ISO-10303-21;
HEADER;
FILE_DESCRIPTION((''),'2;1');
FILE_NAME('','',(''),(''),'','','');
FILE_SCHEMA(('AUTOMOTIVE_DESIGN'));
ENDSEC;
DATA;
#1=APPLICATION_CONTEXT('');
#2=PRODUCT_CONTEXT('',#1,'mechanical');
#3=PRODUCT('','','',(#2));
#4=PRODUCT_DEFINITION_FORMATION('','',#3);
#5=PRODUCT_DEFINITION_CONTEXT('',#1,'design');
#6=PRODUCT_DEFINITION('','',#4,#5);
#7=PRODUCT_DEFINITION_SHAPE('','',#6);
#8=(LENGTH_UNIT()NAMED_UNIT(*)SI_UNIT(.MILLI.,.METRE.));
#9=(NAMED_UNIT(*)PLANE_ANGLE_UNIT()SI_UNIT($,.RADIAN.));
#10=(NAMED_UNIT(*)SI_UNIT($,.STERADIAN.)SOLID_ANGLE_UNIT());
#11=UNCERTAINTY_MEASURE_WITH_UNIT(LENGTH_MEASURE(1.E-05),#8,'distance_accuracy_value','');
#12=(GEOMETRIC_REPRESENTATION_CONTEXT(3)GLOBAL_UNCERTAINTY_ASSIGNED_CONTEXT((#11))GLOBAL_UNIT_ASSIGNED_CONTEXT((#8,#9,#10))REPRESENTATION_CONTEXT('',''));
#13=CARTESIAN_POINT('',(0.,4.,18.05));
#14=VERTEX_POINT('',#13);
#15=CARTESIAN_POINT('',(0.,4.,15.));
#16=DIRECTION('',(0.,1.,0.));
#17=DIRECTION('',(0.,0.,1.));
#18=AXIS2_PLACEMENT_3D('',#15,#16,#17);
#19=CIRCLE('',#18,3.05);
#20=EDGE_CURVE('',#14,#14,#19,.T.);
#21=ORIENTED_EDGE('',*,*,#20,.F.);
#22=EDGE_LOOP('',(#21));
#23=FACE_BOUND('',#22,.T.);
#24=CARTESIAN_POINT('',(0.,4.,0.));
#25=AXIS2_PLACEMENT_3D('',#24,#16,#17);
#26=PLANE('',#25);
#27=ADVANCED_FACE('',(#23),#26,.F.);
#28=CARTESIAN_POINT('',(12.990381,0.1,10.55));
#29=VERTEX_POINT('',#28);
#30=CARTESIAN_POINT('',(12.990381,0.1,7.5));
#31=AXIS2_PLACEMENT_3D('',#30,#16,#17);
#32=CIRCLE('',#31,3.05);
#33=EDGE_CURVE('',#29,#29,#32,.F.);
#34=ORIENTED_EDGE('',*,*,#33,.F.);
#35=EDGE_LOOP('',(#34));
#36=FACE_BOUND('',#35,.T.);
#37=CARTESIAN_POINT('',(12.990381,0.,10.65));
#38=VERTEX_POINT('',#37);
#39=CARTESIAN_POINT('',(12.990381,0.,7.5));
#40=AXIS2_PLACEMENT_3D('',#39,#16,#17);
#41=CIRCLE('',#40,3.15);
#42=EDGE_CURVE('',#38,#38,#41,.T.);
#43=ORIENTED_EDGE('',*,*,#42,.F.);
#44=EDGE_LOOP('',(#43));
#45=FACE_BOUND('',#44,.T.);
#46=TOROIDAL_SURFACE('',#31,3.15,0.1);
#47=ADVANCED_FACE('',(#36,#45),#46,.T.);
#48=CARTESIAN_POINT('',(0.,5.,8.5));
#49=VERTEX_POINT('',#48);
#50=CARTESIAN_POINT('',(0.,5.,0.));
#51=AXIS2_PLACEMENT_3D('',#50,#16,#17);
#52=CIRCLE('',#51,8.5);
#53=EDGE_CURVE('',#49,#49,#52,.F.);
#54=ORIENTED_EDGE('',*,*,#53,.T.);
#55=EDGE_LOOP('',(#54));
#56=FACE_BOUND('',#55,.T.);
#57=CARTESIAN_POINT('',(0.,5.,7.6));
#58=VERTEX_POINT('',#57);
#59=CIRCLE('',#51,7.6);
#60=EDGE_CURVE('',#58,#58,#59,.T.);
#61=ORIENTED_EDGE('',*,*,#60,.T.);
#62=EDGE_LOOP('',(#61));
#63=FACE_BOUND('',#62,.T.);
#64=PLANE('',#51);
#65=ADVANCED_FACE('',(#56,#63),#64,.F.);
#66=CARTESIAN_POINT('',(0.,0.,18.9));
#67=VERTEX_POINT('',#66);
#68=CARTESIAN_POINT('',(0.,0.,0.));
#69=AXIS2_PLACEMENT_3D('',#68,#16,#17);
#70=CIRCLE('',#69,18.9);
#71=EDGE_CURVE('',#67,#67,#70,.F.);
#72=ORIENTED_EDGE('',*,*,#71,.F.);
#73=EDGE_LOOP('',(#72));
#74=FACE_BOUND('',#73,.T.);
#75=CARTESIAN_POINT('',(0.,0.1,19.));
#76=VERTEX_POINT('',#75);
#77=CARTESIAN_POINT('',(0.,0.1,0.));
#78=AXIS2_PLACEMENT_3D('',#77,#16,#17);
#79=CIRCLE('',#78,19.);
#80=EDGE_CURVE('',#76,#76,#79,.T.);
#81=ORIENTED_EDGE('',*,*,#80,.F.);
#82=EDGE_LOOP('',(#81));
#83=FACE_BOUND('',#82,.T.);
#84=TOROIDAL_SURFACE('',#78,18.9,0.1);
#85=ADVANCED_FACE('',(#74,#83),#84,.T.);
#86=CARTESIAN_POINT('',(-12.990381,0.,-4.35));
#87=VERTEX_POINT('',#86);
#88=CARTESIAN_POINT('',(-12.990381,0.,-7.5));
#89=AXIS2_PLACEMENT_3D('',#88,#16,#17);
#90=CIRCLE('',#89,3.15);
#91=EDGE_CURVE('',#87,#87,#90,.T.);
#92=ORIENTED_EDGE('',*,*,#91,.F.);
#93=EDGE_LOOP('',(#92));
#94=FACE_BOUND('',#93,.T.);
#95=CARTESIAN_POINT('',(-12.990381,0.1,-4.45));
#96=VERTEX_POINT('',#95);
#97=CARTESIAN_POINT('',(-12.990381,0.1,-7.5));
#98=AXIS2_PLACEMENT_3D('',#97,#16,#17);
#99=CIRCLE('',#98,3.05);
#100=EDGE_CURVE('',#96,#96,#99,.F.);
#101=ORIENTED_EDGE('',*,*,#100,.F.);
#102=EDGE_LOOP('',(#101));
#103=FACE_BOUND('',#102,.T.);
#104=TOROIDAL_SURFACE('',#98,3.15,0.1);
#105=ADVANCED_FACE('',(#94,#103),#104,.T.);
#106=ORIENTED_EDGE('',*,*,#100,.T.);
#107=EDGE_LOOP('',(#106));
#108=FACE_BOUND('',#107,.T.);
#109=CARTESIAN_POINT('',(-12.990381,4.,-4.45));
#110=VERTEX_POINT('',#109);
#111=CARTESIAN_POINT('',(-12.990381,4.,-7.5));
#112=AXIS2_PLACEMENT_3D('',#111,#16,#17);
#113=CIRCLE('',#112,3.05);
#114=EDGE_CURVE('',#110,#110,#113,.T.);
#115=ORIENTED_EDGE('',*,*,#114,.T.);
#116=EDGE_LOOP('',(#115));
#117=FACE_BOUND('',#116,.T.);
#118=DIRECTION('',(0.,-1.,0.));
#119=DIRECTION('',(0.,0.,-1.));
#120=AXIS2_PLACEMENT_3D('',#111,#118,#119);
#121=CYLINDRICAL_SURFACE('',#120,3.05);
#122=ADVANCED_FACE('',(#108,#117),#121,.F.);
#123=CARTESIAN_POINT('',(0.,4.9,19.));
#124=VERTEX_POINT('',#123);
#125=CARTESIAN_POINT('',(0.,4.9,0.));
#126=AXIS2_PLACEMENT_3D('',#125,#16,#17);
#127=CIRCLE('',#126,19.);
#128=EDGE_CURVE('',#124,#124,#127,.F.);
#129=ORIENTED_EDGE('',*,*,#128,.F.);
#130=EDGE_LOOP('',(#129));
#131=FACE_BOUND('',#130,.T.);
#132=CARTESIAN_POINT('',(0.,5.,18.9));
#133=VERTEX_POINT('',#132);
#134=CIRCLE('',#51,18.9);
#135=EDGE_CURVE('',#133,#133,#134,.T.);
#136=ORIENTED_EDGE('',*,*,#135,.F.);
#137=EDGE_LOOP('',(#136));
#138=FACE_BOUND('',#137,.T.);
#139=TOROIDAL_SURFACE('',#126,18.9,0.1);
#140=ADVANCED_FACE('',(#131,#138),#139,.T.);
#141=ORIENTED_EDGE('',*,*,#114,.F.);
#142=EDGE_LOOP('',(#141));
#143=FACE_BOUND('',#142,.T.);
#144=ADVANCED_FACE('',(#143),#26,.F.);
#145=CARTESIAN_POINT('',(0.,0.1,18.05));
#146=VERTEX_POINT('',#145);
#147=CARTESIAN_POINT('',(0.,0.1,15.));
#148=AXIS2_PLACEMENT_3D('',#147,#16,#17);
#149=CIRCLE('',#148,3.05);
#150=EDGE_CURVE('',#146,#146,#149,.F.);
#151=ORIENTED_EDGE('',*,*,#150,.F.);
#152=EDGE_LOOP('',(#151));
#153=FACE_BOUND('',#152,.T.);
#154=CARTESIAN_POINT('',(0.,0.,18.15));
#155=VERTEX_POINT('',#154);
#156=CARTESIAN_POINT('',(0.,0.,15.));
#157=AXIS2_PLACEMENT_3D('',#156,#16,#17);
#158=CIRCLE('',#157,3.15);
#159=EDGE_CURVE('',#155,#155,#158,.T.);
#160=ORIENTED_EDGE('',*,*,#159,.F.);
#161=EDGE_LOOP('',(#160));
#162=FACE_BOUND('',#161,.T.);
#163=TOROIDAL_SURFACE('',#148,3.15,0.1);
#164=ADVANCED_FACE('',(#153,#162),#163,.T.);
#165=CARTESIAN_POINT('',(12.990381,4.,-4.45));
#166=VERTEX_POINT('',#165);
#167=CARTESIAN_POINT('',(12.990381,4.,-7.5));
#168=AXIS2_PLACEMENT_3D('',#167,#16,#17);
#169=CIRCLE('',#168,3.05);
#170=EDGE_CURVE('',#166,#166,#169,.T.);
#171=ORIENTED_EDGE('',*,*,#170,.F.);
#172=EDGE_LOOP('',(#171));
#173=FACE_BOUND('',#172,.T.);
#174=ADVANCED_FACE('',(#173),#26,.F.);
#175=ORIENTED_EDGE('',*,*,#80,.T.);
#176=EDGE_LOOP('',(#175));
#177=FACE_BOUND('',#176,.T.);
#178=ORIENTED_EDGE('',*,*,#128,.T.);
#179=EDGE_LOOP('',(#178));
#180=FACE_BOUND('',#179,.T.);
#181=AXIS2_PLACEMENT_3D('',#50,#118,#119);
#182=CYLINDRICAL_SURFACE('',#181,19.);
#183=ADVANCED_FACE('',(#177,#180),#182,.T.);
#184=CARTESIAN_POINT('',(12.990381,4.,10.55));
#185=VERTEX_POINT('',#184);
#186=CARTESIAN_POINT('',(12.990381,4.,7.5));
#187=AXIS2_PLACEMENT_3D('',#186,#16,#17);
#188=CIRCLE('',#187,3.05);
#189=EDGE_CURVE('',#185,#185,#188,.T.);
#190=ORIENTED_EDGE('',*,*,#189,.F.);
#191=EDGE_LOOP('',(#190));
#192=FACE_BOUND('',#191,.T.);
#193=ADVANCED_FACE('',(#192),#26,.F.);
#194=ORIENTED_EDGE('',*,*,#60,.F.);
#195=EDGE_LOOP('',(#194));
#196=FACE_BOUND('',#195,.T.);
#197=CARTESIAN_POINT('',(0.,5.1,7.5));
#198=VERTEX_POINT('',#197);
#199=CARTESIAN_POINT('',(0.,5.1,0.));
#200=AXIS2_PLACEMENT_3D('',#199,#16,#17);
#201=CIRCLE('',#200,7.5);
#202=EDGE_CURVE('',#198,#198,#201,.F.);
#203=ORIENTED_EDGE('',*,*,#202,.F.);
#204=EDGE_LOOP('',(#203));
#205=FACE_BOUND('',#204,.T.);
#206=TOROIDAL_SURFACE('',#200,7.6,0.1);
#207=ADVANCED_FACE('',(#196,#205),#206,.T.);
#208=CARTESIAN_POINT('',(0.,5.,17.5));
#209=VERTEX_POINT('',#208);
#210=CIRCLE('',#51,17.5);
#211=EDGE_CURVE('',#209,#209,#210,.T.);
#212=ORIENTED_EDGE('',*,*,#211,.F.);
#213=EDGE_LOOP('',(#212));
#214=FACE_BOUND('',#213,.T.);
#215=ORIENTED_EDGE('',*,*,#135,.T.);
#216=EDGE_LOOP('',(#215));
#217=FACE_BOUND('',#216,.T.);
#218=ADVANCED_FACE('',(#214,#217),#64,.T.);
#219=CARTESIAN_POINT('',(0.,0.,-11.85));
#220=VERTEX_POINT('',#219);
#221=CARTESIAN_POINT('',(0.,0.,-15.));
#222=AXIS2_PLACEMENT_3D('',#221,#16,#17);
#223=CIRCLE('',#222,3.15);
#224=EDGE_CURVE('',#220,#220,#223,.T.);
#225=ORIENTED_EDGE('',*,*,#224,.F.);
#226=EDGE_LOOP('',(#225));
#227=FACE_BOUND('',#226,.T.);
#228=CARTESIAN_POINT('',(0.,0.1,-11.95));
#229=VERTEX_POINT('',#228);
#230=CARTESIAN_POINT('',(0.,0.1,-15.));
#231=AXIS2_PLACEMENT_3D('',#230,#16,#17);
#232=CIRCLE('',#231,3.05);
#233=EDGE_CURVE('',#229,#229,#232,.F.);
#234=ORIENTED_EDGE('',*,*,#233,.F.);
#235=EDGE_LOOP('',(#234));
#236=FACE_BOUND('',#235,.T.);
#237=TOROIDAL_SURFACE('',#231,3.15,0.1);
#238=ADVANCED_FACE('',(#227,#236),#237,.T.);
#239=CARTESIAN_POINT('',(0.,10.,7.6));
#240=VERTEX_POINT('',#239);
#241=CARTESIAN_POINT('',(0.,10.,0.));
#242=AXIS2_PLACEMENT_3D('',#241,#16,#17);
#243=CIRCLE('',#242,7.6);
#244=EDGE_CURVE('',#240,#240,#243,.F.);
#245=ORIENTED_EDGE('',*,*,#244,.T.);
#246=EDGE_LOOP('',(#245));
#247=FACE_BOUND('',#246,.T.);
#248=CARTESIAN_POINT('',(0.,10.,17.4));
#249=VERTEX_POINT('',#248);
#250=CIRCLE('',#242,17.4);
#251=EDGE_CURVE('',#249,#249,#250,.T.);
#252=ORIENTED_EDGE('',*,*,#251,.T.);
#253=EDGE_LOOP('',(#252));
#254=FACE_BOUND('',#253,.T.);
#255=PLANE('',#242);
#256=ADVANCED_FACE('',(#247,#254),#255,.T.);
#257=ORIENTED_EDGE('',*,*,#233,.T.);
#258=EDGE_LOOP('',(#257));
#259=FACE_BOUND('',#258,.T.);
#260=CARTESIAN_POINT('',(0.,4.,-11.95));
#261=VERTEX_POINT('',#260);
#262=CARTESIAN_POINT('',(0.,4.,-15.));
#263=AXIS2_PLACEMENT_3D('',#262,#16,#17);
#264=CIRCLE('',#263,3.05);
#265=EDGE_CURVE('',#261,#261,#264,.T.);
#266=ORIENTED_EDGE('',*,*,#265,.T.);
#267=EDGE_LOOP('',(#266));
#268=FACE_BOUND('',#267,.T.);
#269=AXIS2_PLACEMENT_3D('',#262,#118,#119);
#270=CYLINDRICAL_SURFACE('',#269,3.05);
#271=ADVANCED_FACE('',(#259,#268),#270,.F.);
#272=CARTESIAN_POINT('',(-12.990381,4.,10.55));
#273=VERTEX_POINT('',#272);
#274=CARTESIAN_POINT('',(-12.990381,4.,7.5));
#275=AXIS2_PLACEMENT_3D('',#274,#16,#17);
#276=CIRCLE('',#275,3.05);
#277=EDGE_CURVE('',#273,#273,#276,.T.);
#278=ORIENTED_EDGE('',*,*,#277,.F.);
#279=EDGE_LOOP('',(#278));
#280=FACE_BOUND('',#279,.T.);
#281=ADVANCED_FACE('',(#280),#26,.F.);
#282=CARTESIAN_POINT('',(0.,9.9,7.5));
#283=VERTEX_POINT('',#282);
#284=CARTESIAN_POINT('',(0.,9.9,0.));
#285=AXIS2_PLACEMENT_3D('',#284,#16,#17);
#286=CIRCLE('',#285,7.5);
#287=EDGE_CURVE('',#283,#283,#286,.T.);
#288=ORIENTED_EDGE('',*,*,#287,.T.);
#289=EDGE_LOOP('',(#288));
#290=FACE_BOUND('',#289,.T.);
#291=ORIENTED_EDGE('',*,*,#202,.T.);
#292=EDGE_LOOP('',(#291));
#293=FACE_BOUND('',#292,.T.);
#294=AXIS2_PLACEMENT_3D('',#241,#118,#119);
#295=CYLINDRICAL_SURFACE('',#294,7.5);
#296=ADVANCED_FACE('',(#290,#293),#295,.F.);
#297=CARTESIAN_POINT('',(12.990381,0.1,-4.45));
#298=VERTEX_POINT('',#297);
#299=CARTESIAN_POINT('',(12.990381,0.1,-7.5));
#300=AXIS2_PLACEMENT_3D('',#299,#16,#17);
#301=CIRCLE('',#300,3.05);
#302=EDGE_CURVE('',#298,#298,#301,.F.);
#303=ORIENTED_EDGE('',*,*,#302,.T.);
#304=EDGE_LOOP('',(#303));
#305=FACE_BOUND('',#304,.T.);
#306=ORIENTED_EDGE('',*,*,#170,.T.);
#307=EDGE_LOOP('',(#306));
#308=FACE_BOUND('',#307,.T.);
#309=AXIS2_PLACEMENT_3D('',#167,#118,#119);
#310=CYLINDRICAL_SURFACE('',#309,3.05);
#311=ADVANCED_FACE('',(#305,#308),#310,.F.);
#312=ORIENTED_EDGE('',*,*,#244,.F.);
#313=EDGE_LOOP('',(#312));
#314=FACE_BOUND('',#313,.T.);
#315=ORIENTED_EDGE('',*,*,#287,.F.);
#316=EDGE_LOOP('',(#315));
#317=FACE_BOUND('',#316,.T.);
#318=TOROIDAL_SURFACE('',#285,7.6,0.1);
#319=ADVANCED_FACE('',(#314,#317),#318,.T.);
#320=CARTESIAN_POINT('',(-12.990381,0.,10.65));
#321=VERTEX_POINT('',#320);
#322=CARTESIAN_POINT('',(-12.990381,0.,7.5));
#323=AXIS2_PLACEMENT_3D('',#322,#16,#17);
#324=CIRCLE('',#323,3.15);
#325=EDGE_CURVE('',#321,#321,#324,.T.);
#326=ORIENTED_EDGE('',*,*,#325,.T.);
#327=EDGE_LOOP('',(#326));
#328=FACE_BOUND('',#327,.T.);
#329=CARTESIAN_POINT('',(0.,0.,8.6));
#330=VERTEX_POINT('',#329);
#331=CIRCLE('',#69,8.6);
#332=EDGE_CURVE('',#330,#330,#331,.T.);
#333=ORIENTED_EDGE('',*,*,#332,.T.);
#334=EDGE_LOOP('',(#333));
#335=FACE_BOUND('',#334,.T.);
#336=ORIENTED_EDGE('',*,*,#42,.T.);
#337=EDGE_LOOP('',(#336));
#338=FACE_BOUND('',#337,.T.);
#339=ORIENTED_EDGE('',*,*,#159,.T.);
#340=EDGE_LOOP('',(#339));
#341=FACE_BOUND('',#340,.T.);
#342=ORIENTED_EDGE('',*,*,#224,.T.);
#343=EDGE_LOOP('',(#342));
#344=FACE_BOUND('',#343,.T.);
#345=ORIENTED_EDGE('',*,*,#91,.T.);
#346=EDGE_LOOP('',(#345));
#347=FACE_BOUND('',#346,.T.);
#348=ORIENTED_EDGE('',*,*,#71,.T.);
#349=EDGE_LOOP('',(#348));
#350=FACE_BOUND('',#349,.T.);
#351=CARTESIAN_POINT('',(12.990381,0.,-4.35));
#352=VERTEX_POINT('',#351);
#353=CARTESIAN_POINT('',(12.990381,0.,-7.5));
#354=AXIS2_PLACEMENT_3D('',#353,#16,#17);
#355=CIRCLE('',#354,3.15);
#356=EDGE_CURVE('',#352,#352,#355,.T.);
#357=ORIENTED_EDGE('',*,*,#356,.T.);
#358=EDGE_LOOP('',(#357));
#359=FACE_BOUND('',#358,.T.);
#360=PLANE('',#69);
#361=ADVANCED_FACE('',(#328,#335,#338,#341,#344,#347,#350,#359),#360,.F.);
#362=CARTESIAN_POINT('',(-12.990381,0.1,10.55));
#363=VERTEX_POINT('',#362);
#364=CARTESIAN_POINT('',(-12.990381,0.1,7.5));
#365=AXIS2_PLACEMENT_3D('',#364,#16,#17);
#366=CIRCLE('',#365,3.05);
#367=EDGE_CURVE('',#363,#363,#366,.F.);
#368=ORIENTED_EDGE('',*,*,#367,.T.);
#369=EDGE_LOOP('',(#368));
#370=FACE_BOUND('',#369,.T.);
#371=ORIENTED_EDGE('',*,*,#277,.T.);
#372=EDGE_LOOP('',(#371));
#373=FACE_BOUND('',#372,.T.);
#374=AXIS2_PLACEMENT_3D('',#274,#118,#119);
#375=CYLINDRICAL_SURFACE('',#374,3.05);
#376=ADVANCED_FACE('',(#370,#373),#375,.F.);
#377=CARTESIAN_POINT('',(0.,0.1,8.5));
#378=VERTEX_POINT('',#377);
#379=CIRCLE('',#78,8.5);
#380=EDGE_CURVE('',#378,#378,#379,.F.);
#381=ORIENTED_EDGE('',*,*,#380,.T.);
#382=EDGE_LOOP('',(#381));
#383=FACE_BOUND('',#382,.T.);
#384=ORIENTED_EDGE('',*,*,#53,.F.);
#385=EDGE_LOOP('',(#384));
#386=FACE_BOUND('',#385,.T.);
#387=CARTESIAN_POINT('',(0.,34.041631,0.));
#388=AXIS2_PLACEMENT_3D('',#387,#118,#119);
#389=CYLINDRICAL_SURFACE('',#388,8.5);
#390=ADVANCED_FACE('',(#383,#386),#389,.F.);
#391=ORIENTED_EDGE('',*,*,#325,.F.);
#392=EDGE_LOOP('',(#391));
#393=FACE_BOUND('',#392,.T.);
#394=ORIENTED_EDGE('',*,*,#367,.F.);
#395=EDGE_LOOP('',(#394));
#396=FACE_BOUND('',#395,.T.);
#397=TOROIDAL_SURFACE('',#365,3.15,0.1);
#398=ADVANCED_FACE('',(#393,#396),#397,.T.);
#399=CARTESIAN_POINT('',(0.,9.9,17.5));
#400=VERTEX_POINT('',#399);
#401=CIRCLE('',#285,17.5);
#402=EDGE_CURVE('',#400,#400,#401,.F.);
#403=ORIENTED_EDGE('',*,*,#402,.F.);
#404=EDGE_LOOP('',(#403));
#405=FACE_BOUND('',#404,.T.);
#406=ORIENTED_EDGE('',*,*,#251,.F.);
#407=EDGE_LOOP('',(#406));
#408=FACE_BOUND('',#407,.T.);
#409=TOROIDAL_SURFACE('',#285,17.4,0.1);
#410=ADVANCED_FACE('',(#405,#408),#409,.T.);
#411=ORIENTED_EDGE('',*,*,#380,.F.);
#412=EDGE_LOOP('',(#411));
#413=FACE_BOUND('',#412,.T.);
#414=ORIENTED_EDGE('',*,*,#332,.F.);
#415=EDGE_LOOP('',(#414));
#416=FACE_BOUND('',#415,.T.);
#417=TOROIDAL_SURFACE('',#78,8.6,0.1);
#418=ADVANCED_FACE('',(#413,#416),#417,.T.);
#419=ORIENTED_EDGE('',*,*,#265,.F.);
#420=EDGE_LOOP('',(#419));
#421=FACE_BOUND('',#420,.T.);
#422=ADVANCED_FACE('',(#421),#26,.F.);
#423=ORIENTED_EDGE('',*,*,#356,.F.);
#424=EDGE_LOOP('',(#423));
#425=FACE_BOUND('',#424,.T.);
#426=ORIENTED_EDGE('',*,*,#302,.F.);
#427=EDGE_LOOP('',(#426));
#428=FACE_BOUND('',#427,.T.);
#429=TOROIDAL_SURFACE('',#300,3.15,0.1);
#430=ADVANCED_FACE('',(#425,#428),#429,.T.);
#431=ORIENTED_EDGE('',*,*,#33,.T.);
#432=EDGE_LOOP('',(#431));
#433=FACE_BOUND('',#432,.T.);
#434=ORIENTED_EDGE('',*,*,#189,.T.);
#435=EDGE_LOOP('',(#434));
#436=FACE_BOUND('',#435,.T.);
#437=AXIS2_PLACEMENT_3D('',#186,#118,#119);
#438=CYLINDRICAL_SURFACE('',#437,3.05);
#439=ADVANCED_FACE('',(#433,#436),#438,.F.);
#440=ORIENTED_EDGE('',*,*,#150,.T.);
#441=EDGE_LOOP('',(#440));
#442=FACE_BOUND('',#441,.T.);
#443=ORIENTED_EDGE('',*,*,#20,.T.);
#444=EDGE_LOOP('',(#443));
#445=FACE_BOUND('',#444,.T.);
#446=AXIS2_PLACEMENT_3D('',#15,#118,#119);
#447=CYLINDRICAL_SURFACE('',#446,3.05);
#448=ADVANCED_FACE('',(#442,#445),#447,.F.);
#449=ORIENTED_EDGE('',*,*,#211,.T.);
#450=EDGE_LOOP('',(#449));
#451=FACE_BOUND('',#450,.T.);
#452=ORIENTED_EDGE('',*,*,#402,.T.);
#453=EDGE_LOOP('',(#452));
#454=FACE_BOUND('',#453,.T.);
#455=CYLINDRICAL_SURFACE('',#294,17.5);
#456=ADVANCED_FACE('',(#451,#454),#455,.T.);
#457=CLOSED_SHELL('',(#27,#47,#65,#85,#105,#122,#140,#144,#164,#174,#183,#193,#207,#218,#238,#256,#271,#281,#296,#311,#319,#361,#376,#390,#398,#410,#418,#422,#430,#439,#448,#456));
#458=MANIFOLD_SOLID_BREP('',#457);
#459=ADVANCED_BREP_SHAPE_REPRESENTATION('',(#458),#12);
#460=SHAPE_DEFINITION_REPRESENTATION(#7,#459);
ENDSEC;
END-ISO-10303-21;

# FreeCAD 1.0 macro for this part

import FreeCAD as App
import Part
import Sketcher


def edges_at(feature, points):
    """Names of the edges that pass closest to the given points."""
    edges = feature.Shape.Edges
    near = lambda p: min(range(len(edges)), key=lambda i: edges[i].distToShape(Part.Vertex(*p))[0])
    return sorted({f"Edge{near(p) + 1}" for p in points})

doc = App.newDocument("Part")
params = doc.addObject("Spreadsheet::Sheet", "Params")
for row, (alias, value) in enumerate([
    ("sketch1_diameter", "38 mm"),
    ("pad1_length", "5 mm"),
    ("sketch2_diameter", "6.1 mm"),
    ("pocket1_length", "4 mm"),
    ("sketch3_diameter", "35 mm"),
    ("sketch3_diameter2", "15 mm"),
    ("pad2_length", "5 mm"),
    ("sketch4_diameter", "17 mm"),
    ("pocket2_length", "5 mm"),
    ("fillet_radius", "0.1 mm"),
], start=1):
    params.set(f"A{row}", alias)
    params.set(f"B{row}", "=" + value)
    params.setAlias(f"B{row}", alias)

body = doc.addObject("PartDesign::Body", "Body")

# Sketch on XZ plane
sketch1 = doc.addObject("Sketcher::SketchObject", "Sketch")
body.addObject(sketch1)
sketch1.AttachmentSupport = (doc.XZ_Plane, [""])
sketch1.MapMode = "FlatFace"
sketch1.addGeometry(Part.Circle(App.Vector(0, 0, 0), App.Vector(0, 0, 1), 19), False)
sketch1.addConstraint(Sketcher.Constraint("Coincident", 0, 3, -1, 1))
sketch1.addConstraint(Sketcher.Constraint("Diameter", 0, 38.0))
sketch1.setExpression("Constraints[1]", "Params.sketch1_diameter")
pad1 = doc.addObject("PartDesign::Pad", "Pad")
body.addObject(pad1)
pad1.Profile = sketch1
pad1.setExpression("Length", "Params.pad1_length")
pad1.Reversed = True

# Sketch on XZ plane
sketch2 = doc.addObject("Sketcher::SketchObject", "Sketch001")
body.addObject(sketch2)
sketch2.AttachmentSupport = (doc.XZ_Plane, [""])
sketch2.MapMode = "FlatFace"
sketch2.addGeometry(Part.Circle(App.Vector(-12.990381, -7.5, 0), App.Vector(0, 0, 1), 3.05), False)
sketch2.addGeometry(Part.Circle(App.Vector(-12.990381, 7.5, 0), App.Vector(0, 0, 1), 3.05), False)
sketch2.addGeometry(Part.Circle(App.Vector(0, 15, 0), App.Vector(0, 0, 1), 3.05), False)
sketch2.addGeometry(Part.Circle(App.Vector(12.990381, 7.5, 0), App.Vector(0, 0, 1), 3.05), False)
sketch2.addGeometry(Part.Circle(App.Vector(12.990381, -7.5, 0), App.Vector(0, 0, 1), 3.05), False)
sketch2.addGeometry(Part.Circle(App.Vector(0, -15, 0), App.Vector(0, 0, 1), 3.05), False)
sketch2.addConstraint(Sketcher.Constraint("Equal", 0, 1))
sketch2.addConstraint(Sketcher.Constraint("Equal", 1, 2))
sketch2.addConstraint(Sketcher.Constraint("Equal", 2, 3))
sketch2.addConstraint(Sketcher.Constraint("Equal", 3, 4))
sketch2.addConstraint(Sketcher.Constraint("Equal", 4, 5))
sketch2.addConstraint(Sketcher.Constraint("Symmetric", 0, 3, 3, 3, -1, 1))
sketch2.addConstraint(Sketcher.Constraint("Symmetric", 1, 3, 4, 3, -1, 1))
sketch2.addConstraint(Sketcher.Constraint("Symmetric", 2, 3, 5, 3, -1, 1))
sketch2.addConstraint(Sketcher.Constraint("Symmetric", 1, 3, 3, 3, -2))
sketch2.addConstraint(Sketcher.Constraint("PointOnObject", 2, 3, -2))
sketch2.addConstraint(Sketcher.Constraint("Diameter", 0, 6.1))
sketch2.addConstraint(Sketcher.Constraint("DistanceY", -1, 1, 2, 3, 15.0))
sketch2.addConstraint(Sketcher.Constraint("DistanceY", 0, 3, 1, 3, 15.0))
sketch2.addConstraint(Sketcher.Constraint("DistanceX", 0, 3, -1, 1, 12.990381))
sketch2.setExpression("Constraints[10]", "Params.sketch2_diameter")
pocket1 = doc.addObject("PartDesign::Pocket", "Pocket")
body.addObject(pocket1)
pocket1.Profile = sketch2
pocket1.setExpression("Length", "Params.pocket1_length")

# Sketch on XZ plane
sketch3 = doc.addObject("Sketcher::SketchObject", "Sketch002")
body.addObject(sketch3)
sketch3.AttachmentSupport = (doc.XZ_Plane, [""])
sketch3.MapMode = "FlatFace"
sketch3.AttachmentOffset = App.Placement(App.Vector(0, 0, -5), App.Rotation())
sketch3.addGeometry(Part.Circle(App.Vector(0, 0, 0), App.Vector(0, 0, 1), 17.5), False)
sketch3.addGeometry(Part.Circle(App.Vector(0, 0, 0), App.Vector(0, 0, 1), 7.5), False)
sketch3.addConstraint(Sketcher.Constraint("Coincident", 0, 3, -1, 1))
sketch3.addConstraint(Sketcher.Constraint("Coincident", 1, 3, -1, 1))
sketch3.addConstraint(Sketcher.Constraint("Diameter", 0, 35.0))
sketch3.addConstraint(Sketcher.Constraint("Diameter", 1, 15.0))
sketch3.setExpression("Constraints[2]", "Params.sketch3_diameter")
sketch3.setExpression("Constraints[3]", "Params.sketch3_diameter2")
pad2 = doc.addObject("PartDesign::Pad", "Pad001")
body.addObject(pad2)
pad2.Profile = sketch3
pad2.setExpression("Length", "Params.pad2_length")
pad2.Reversed = True

# Sketch on XZ plane
sketch4 = doc.addObject("Sketcher::SketchObject", "Sketch003")
body.addObject(sketch4)
sketch4.AttachmentSupport = (doc.XZ_Plane, [""])
sketch4.MapMode = "FlatFace"
sketch4.addGeometry(Part.Circle(App.Vector(0, 0, 0), App.Vector(0, 0, 1), 8.5), False)
sketch4.addConstraint(Sketcher.Constraint("Coincident", 0, 3, -1, 1))
sketch4.addConstraint(Sketcher.Constraint("Diameter", 0, 17.0))
sketch4.setExpression("Constraints[1]", "Params.sketch4_diameter")
pocket2 = doc.addObject("PartDesign::Pocket", "Pocket001")
body.addObject(pocket2)
pocket2.Profile = sketch4
pocket2.setExpression("Length", "Params.pocket2_length")
doc.recompute()

fillet = doc.addObject("PartDesign::Fillet", "Fillet")
body.addObject(fillet)
fillet.Base = (pocket2, edges_at(pocket2, [
    (0, 0, -18.05),
    (12.99, 0, -10.55),
    (12.99, 0, 4.45),
    (0, 0, 11.95),
    (-12.99, 0, 4.45),
    (-12.99, 0, -10.55),
    (0, 0, -19),
    (0, 10, -17.5),
    (0, 10, -7.5),
    (0, 5, -7.5),
    (0, 0, 8.5),
    (0, 5, -19),
]))
fillet.setExpression("Radius", "Params.fillet_radius")

doc.recompute()
